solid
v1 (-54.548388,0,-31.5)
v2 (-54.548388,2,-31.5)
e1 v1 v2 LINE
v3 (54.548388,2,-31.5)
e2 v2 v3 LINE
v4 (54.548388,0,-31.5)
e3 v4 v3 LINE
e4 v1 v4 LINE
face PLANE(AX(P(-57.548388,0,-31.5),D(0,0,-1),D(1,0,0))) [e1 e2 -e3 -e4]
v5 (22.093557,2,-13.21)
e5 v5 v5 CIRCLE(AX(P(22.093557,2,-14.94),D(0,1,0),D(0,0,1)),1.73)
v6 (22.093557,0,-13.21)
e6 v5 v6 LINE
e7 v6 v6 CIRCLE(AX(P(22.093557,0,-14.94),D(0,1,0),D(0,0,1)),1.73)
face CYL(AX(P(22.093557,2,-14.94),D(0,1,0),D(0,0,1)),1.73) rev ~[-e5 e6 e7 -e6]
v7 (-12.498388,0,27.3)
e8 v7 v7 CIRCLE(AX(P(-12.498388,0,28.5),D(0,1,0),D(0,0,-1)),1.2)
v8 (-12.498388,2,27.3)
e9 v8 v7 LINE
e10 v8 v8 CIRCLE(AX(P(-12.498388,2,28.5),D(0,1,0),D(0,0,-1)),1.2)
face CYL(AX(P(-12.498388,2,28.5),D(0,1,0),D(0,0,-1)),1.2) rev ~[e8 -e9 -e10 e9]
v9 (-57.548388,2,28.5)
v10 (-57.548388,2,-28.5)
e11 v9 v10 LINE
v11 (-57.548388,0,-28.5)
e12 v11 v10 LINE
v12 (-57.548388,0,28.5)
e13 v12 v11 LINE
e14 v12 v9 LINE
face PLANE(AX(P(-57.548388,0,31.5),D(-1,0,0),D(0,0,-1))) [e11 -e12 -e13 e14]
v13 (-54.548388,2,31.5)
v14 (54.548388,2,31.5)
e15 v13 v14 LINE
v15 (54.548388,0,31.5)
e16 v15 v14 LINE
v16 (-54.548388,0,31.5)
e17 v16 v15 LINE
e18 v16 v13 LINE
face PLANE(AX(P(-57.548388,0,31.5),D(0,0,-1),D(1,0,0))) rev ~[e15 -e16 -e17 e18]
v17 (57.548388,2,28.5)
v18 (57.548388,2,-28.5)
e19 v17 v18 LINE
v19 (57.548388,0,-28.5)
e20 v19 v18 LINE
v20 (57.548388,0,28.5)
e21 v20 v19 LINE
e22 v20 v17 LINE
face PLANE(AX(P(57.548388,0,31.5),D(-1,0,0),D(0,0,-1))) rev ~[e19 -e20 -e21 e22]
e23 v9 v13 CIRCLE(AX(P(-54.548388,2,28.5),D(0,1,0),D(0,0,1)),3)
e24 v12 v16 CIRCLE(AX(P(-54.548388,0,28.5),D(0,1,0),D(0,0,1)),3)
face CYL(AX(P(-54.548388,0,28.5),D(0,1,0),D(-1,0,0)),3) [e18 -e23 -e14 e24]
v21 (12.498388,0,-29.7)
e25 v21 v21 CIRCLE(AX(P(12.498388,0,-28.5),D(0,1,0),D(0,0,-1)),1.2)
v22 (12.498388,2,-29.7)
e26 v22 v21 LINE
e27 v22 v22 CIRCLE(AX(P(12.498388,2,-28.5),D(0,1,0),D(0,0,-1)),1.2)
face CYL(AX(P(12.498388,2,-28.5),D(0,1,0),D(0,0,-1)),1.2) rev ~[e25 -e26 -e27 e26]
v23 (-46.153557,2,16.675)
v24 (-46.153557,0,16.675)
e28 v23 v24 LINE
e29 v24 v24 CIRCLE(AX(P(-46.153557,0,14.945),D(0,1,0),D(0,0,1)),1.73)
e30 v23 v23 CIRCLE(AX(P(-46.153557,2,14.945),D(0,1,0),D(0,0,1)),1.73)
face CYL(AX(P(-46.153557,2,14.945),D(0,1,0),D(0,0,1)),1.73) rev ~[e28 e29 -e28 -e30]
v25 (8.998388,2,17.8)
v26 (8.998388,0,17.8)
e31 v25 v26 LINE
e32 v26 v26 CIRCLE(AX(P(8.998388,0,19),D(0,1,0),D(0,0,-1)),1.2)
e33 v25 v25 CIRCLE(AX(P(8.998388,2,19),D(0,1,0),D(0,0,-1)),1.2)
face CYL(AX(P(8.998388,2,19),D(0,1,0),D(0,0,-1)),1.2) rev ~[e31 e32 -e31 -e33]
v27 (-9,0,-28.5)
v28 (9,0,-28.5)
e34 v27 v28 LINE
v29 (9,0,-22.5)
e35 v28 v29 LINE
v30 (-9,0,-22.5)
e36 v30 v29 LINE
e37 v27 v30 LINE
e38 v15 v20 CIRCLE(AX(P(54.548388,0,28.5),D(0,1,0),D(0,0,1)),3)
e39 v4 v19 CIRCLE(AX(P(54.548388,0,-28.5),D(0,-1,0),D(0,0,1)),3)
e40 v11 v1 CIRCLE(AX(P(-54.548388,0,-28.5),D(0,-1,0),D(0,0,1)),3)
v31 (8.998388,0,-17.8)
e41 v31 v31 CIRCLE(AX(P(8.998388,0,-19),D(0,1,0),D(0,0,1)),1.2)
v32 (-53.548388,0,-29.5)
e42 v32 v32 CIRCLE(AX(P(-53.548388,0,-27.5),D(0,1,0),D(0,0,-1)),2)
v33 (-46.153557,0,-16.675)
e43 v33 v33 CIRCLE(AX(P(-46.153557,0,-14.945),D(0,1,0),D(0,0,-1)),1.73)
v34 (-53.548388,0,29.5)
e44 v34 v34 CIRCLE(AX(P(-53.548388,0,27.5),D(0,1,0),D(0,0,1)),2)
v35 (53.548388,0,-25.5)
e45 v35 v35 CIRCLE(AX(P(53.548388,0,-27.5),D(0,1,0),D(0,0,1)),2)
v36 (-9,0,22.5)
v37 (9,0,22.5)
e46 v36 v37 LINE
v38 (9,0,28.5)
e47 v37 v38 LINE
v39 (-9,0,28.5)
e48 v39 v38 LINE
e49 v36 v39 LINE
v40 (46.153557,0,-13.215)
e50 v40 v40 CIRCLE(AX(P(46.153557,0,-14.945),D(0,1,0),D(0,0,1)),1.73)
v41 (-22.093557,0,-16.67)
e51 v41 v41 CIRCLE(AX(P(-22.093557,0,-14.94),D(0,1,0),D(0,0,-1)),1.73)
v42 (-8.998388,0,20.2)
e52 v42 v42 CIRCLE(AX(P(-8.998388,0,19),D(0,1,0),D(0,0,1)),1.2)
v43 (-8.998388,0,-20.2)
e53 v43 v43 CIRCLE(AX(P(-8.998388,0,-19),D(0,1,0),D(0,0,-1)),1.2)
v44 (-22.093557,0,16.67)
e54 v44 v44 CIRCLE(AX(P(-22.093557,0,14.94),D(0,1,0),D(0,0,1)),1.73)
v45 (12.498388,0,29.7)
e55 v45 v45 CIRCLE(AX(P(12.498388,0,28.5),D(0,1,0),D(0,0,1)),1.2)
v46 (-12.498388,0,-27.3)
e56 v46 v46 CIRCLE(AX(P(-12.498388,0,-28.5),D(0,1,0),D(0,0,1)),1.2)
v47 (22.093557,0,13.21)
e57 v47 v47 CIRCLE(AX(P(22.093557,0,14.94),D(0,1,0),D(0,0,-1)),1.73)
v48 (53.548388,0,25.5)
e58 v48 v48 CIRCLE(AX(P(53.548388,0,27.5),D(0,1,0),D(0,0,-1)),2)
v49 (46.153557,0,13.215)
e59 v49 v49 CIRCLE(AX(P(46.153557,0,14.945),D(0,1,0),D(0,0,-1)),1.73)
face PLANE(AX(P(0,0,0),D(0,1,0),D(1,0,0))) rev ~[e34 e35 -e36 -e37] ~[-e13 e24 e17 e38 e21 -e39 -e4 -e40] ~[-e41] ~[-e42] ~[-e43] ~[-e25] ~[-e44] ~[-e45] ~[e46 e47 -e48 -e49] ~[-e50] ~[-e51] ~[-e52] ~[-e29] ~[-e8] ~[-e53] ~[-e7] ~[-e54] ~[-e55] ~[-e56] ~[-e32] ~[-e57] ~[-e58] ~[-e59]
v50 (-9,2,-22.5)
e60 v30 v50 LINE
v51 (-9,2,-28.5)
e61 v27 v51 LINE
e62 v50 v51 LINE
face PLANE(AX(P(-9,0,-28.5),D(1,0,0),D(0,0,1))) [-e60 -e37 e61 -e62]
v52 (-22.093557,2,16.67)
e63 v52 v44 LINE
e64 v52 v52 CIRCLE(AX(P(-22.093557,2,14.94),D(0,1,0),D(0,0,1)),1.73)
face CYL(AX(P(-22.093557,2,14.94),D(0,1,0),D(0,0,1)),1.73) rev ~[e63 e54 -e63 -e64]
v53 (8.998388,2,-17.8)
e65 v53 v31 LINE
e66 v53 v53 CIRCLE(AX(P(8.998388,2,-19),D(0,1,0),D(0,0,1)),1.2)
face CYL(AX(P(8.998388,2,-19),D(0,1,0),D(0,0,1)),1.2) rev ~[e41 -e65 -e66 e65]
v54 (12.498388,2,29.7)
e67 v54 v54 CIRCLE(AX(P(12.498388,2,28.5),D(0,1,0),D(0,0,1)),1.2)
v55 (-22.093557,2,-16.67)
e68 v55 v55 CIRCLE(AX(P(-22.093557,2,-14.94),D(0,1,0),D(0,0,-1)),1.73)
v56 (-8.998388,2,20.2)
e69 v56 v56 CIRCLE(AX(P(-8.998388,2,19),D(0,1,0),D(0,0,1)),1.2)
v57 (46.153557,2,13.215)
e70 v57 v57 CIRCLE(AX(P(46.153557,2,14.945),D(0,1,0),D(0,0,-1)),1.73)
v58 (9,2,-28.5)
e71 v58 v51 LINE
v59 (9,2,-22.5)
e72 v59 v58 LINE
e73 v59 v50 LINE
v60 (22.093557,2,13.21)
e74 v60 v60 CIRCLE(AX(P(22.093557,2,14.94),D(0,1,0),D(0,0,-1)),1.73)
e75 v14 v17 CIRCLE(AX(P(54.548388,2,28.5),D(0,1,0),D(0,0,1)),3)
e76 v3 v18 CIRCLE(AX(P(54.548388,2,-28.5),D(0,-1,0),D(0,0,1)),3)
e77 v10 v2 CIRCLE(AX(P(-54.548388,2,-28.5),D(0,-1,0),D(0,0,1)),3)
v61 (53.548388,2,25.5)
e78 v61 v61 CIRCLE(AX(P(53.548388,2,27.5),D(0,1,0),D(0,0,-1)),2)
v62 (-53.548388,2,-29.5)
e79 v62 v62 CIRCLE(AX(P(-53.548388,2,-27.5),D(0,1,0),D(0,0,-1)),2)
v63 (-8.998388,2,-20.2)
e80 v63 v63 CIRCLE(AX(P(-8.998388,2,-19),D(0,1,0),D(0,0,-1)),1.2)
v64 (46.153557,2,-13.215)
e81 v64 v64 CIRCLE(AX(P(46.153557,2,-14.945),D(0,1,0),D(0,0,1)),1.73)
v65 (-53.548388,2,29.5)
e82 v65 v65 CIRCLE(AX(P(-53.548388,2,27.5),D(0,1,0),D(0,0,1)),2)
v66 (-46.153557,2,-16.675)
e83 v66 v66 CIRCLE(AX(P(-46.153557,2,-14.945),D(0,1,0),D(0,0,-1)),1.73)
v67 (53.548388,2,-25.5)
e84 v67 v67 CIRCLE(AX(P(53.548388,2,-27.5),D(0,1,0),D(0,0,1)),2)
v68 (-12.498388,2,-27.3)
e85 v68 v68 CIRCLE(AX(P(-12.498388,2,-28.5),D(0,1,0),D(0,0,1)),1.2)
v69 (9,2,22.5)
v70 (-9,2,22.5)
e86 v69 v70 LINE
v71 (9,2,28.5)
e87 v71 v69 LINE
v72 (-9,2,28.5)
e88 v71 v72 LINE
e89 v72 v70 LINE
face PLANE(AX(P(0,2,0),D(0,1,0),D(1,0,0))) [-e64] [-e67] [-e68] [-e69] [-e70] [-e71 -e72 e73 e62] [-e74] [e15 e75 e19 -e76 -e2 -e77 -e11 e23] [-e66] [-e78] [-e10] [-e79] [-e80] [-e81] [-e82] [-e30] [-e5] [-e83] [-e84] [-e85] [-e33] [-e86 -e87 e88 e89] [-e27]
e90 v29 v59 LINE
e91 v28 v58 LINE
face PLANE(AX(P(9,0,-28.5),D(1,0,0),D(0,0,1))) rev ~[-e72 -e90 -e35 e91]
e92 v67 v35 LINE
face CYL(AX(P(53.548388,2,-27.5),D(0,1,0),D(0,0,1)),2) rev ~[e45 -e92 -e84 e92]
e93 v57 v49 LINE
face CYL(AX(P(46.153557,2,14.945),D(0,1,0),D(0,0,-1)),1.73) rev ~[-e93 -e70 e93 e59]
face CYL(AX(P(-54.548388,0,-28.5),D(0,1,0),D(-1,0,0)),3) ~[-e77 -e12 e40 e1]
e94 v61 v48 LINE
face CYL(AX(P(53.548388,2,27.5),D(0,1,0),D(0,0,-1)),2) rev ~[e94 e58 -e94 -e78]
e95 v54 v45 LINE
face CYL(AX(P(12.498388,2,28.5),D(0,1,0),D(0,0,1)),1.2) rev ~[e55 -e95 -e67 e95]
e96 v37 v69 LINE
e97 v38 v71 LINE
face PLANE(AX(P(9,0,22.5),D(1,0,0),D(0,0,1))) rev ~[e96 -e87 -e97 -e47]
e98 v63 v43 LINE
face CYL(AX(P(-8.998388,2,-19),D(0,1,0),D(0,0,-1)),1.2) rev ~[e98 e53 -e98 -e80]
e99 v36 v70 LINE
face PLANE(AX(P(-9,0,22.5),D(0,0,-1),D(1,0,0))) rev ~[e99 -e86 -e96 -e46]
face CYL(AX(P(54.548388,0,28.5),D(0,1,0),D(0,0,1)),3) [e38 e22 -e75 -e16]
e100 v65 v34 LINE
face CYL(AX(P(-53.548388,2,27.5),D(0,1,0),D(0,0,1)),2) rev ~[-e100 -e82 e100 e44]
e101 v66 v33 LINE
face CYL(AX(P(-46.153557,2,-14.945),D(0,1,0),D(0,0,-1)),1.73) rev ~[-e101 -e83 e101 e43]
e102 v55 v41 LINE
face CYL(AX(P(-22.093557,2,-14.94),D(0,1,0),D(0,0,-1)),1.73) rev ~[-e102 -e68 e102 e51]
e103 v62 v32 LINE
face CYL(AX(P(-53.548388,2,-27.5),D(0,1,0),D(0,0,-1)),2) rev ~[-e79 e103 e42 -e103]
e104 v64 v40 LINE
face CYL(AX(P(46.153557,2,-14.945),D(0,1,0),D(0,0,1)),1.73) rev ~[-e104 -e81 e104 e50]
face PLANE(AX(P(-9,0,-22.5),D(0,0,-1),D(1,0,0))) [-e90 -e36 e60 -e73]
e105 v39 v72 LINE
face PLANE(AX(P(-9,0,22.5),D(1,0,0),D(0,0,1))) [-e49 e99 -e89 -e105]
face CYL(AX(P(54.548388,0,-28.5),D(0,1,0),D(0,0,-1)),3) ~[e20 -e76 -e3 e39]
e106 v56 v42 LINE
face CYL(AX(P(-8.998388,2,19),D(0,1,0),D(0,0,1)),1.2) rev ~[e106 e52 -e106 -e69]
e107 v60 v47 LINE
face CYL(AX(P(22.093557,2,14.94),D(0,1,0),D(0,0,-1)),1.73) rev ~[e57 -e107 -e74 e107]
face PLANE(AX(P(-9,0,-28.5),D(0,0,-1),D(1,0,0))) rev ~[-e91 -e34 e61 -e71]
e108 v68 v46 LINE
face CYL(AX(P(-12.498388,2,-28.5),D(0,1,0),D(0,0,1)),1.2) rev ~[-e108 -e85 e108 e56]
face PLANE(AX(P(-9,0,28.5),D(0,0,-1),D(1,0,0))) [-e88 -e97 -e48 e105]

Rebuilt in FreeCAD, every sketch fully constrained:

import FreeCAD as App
import Part
import Sketcher
from FreeCAD import Vector
Q = App.Units.Quantity


def edges_at(feature, points):
    """Names of the edges that pass closest to the given points."""
    edges = feature.Shape.Edges
    near = lambda p: min(range(len(edges)), key=lambda i: edges[i].distToShape(Part.Vertex(*p))[0])
    return sorted({f"Edge{near(p) + 1}" for p in points})


def add_polygon(sketch, points):
    """Adds a closed chain of lines whose ends are joined by coincident constraints."""
    first, n = sketch.GeometryCount, len(points)
    for a, b in zip(points, points[1:] + points[:1]):
        sketch.addGeometry(Part.LineSegment(App.Vector(*a, 0), App.Vector(*b, 0)), False)
    for i in range(n):
        sketch.addConstraint(Sketcher.Constraint("Coincident", first + i, 2, first + (i + 1) % n, 1))

doc = App.newDocument("Part")
body = doc.addObject("PartDesign::Body", "Body")

# Sketch on XZ plane
sketch1 = body.newObject("Sketcher::SketchObject", "Sketch")
sketch1.AttachmentSupport = (doc.getObject("XZ_Plane"), [""])
sketch1.MapMode = "FlatFace"
add_polygon(sketch1, [(-58, -32), (-58, 32), (58, 32), (58, -32)])  # lines 0-3
sketch1.addConstraint([
    Sketcher.Constraint("Vertical", 0),
    Sketcher.Constraint("Horizontal", 1),
    Sketcher.Constraint("Vertical", 2),
    Sketcher.Constraint("Horizontal", 3),
    Sketcher.Constraint("Symmetric", 0, 2, 2, 2, -1, 1),
    Sketcher.Constraint("DistanceY", 0, 1, 0, 2, Q("63 mm")),
    Sketcher.Constraint("DistanceX", 1, 1, 1, 2, Q("115.096777 mm")),
])
pad1 = body.newObject("PartDesign::Pad", "Pad")
pad1.Profile = sketch1
pad1.Length = 2
pad1.Reversed = True

# Sketch on XZ plane
sketch2 = body.newObject("Sketcher::SketchObject", "Sketch001")
sketch2.AttachmentSupport = (doc.getObject("XZ_Plane"), [""])
sketch2.MapMode = "FlatFace"
sketch2.AttachmentOffset = App.Placement(Vector(0, 0, -2), App.Rotation())
sketch2.addGeometry([
    Part.Circle(Vector(-46.2, 14.9, 0), Vector(0, 0, 1), 1.7),  # 0
    Part.Circle(Vector(-22.1, 14.9, 0), Vector(0, 0, 1), 1.7),  # 1
    Part.Circle(Vector(22.1, 14.9, 0), Vector(0, 0, 1), 1.7),  # 2
    Part.Circle(Vector(46.2, 14.9, 0), Vector(0, 0, 1), 1.7),  # 3
    Part.Circle(Vector(46.2, -14.9, 0), Vector(0, 0, 1), 1.7),  # 4
    Part.Circle(Vector(22.1, -14.9, 0), Vector(0, 0, 1), 1.7),  # 5
    Part.Circle(Vector(-22.1, -14.9, 0), Vector(0, 0, 1), 1.7),  # 6
    Part.Circle(Vector(-46.2, -14.9, 0), Vector(0, 0, 1), 1.7),  # 7
], False)
sketch2.addConstraint([
    Sketcher.Constraint("Equal", 0, 1),
    Sketcher.Constraint("Equal", 1, 2),
    Sketcher.Constraint("Equal", 2, 3),
    Sketcher.Constraint("Equal", 3, 4),
    Sketcher.Constraint("Equal", 4, 5),
    Sketcher.Constraint("Equal", 5, 6),
    Sketcher.Constraint("Equal", 6, 7),
    Sketcher.Constraint("Symmetric", 0, 3, 4, 3, -1, 1),
    Sketcher.Constraint("Symmetric", 1, 3, 5, 3, -1, 1),
    Sketcher.Constraint("Symmetric", 2, 3, 6, 3, -1, 1),
    Sketcher.Constraint("Symmetric", 3, 3, 7, 3, -1, 1),
    Sketcher.Constraint("Symmetric", 1, 3, 2, 3, -2),
    Sketcher.Constraint("Symmetric", 0, 3, 3, 3, -2),
    Sketcher.Constraint("Diameter", 0, Q("3.46 mm")),
    Sketcher.Constraint("DistanceY", -1, 1, 1, 3, Q("14.94 mm")),
    Sketcher.Constraint("DistanceX", 0, 3, 1, 3, Q("24.06 mm")),
    Sketcher.Constraint("DistanceY", 4, 3, 3, 3, Q("29.89 mm")),
    Sketcher.Constraint("DistanceX", 0, 3, -1, 1, Q("46.153557 mm")),
])
pocket1 = body.newObject("PartDesign::Pocket", "Pocket")
pocket1.Profile = sketch2
pocket1.Type = "ThroughAll"
pocket1.Reversed = True

# Sketch on XZ plane
sketch3 = body.newObject("Sketcher::SketchObject", "Sketch002")
sketch3.AttachmentSupport = (doc.getObject("XZ_Plane"), [""])
sketch3.MapMode = "FlatFace"
add_polygon(sketch3, [(-9, 28), (-9, 22), (9, 22), (9, 28)])  # lines 0-3
add_polygon(sketch3, [(-9, -22), (-9, -28), (9, -28), (9, -22)])  # lines 4-7
sketch3.addConstraint([
    Sketcher.Constraint("Vertical", 0),
    Sketcher.Constraint("Horizontal", 1),
    Sketcher.Constraint("Vertical", 2),
    Sketcher.Constraint("Horizontal", 3),
    Sketcher.Constraint("Vertical", 4),
    Sketcher.Constraint("Horizontal", 5),
    Sketcher.Constraint("Vertical", 6),
    Sketcher.Constraint("Horizontal", 7),
    Sketcher.Constraint("Symmetric", 2, 2, 4, 2, -1, 1),
    Sketcher.Constraint("Symmetric", 0, 2, 6, 2, -1, 1),
    Sketcher.Constraint("Vertical", 3, 2, 4, 2),
    Sketcher.Constraint("DistanceX", 1, 1, 1, 2, Q("18 mm")),
    Sketcher.Constraint("DistanceY", 0, 2, 0, 1, Q("6 mm")),
    Sketcher.Constraint("DistanceY", 4, 2, 0, 2, Q("51 mm")),
])
pocket2 = body.newObject("PartDesign::Pocket", "Pocket001")
pocket2.Profile = sketch3
pocket2.Type = "ThroughAll"

# Sketch on XZ plane
sketch4 = body.newObject("Sketcher::SketchObject", "Sketch003")
sketch4.AttachmentSupport = (doc.getObject("XZ_Plane"), [""])
sketch4.MapMode = "FlatFace"
sketch4.AttachmentOffset = App.Placement(Vector(0, 0, -2), App.Rotation())
sketch4.addGeometry([
    Part.Circle(Vector(53.5, -27.5, 0), Vector(0, 0, 1), 2),
    Part.Circle(Vector(53.5, 27.5, 0), Vector(0, 0, 1), 2),
    Part.Circle(Vector(-53.5, 27.5, 0), Vector(0, 0, 1), 2),
    Part.Circle(Vector(-53.5, -27.5, 0), Vector(0, 0, 1), 2),
], False)
sketch4.addConstraint([
    Sketcher.Constraint("Equal", 0, 1),
    Sketcher.Constraint("Equal", 1, 2),
    Sketcher.Constraint("Equal", 2, 3),
    Sketcher.Constraint("Symmetric", 0, 3, 2, 3, -1, 1),
    Sketcher.Constraint("Symmetric", 1, 3, 3, 3, -1, 1),
    Sketcher.Constraint("Symmetric", 1, 3, 2, 3, -2),
    Sketcher.Constraint("Diameter", 0, Q("4 mm")),
    Sketcher.Constraint("DistanceY", 0, 3, 1, 3, Q("55 mm")),
    Sketcher.Constraint("DistanceX", -1, 1, 0, 3, Q("53.548388 mm")),
])
pocket3 = body.newObject("PartDesign::Pocket", "Pocket002")
pocket3.Profile = sketch4
pocket3.Type = "ThroughAll"
pocket3.Reversed = True
doc.recompute()

fillet = body.newObject("PartDesign::Fillet", "Fillet")
fillet.Base = (pocket3, edges_at(pocket3, [
    (-57.548, 1, -31.5),
    (57.548, 1, -31.5),
    (57.548, 1, 31.5),
    (-57.548, 1, 31.5),
]))
fillet.Radius = 3

# Sketch on XZ plane
sketch5 = body.newObject("Sketcher::SketchObject", "Sketch004")
sketch5.AttachmentSupport = (doc.getObject("XZ_Plane"), [""])
sketch5.MapMode = "FlatFace"
sketch5.AttachmentOffset = App.Placement(Vector(0, 0, -2), App.Rotation())
sketch5.addGeometry([
    Part.Circle(Vector(-12.5, -28.5, 0), Vector(0, 0, 1), 1.2),  # 0
    Part.Circle(Vector(12.5, -28.5, 0), Vector(0, 0, 1), 1.2),  # 1
    Part.Circle(Vector(12.5, 28.5, 0), Vector(0, 0, 1), 1.2),  # 2
    Part.Circle(Vector(-12.5, 28.5, 0), Vector(0, 0, 1), 1.2),  # 3
    Part.Circle(Vector(-9, 19, 0), Vector(0, 0, 1), 1.2),  # 4
    Part.Circle(Vector(9, 19, 0), Vector(0, 0, 1), 1.2),  # 5
    Part.Circle(Vector(9, -19, 0), Vector(0, 0, 1), 1.2),  # 6
    Part.Circle(Vector(-9, -19, 0), Vector(0, 0, 1), 1.2),  # 7
], False)
sketch5.addConstraint([
    Sketcher.Constraint("Equal", 0, 1),
    Sketcher.Constraint("Equal", 1, 2),
    Sketcher.Constraint("Equal", 2, 3),
    Sketcher.Constraint("Equal", 3, 4),
    Sketcher.Constraint("Equal", 4, 5),
    Sketcher.Constraint("Equal", 5, 6),
    Sketcher.Constraint("Equal", 6, 7),
    Sketcher.Constraint("Symmetric", 0, 3, 2, 3, -1, 1),
    Sketcher.Constraint("Symmetric", 1, 3, 3, 3, -1, 1),
    Sketcher.Constraint("Symmetric", 4, 3, 6, 3, -1, 1),
    Sketcher.Constraint("Symmetric", 5, 3, 7, 3, -1, 1),
    Sketcher.Constraint("Symmetric", 0, 3, 1, 3, -2),
    Sketcher.Constraint("Symmetric", 4, 3, 5, 3, -2),
    Sketcher.Constraint("Diameter", 0, Q("2.4 mm")),
    Sketcher.Constraint("DistanceY", -1, 1, 4, 3, Q("19 mm")),
    Sketcher.Constraint("DistanceY", 1, 3, 2, 3, Q("57 mm")),
    Sketcher.Constraint("DistanceX", 3, 3, 4, 3, Q("3.5 mm")),
    Sketcher.Constraint("DistanceX", 0, 3, -1, 1, Q("12.498388 mm")),
])
pocket4 = body.newObject("PartDesign::Pocket", "Pocket003")
pocket4.Profile = sketch5
pocket4.Type = "ThroughAll"
pocket4.Reversed = True

doc.recompute()
